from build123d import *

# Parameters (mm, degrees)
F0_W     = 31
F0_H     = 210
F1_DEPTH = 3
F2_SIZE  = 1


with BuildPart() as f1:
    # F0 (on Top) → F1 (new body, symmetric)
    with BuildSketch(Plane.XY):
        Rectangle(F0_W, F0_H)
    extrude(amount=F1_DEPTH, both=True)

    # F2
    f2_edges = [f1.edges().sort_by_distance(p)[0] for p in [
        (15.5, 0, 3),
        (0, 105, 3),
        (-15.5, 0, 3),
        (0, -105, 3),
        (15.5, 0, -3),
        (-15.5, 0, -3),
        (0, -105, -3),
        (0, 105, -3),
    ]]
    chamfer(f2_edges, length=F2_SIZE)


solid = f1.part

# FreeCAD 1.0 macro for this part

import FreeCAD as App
import Part
import Sketcher
from FreeCAD import Vector
Q = App.Units.Quantity


def edges_at(feature, points):
    """Names of the edges that pass closest to the given points."""
    edges = feature.Shape.Edges
    near = lambda p: min(range(len(edges)), key=lambda i: edges[i].distToShape(Part.Vertex(*p))[0])
    return sorted({f"Edge{near(p) + 1}" for p in points})

doc = App.newDocument("Part")
body = doc.addObject("PartDesign::Body", "Body")

sketch1 = body.newObject("Sketcher::SketchObject", "Sketch")
sketch1.AttachmentSupport = (doc.getObject("XY_Plane"), [""])
sketch1.MapMode = "FlatFace"
sketch1.addGeometry([
    Part.LineSegment(Vector(-16, 105, 0), Vector(-16, -105, 0)),
    Part.LineSegment(Vector(-16, -105, 0), Vector(16, -105, 0)),
    Part.LineSegment(Vector(16, -105, 0), Vector(16, 105, 0)),
    Part.LineSegment(Vector(16, 105, 0), Vector(-16, 105, 0)),
], False)
sketch1.addConstraint([
    Sketcher.Constraint("Coincident", 0, 2, 1, 1),
    Sketcher.Constraint("Coincident", 1, 2, 2, 1),
    Sketcher.Constraint("Coincident", 2, 2, 3, 1),
    Sketcher.Constraint("Coincident", 3, 2, 0, 1),
    Sketcher.Constraint("Vertical", 0),
    Sketcher.Constraint("Horizontal", 1),
    Sketcher.Constraint("Vertical", 2),
    Sketcher.Constraint("Horizontal", 3),
    Sketcher.Constraint("Symmetric", 0, 2, 2, 2, -1, 1),
    Sketcher.Constraint("DistanceX", 1, 1, 1, 2, Q("31 mm")),
    Sketcher.Constraint("DistanceY", 0, 2, 0, 1, Q("210 mm")),
])
pad1 = body.newObject("PartDesign::Pad", "Pad")
pad1.Profile = sketch1
pad1.Length = 6
pad1.Midplane = True
doc.recompute()

chamfer = body.newObject("PartDesign::Chamfer", "Chamfer")
chamfer.Base = (pad1, edges_at(pad1, [
    (15.5, 0, 3),
    (0, 105, 3),
    (-15.5, 0, 3),
    (0, -105, 3),
    (15.5, 0, -3),
    (-15.5, 0, -3),
    (0, -105, -3),
    (0, 105, -3),
]))
chamfer.Size = 1

doc.recompute()
